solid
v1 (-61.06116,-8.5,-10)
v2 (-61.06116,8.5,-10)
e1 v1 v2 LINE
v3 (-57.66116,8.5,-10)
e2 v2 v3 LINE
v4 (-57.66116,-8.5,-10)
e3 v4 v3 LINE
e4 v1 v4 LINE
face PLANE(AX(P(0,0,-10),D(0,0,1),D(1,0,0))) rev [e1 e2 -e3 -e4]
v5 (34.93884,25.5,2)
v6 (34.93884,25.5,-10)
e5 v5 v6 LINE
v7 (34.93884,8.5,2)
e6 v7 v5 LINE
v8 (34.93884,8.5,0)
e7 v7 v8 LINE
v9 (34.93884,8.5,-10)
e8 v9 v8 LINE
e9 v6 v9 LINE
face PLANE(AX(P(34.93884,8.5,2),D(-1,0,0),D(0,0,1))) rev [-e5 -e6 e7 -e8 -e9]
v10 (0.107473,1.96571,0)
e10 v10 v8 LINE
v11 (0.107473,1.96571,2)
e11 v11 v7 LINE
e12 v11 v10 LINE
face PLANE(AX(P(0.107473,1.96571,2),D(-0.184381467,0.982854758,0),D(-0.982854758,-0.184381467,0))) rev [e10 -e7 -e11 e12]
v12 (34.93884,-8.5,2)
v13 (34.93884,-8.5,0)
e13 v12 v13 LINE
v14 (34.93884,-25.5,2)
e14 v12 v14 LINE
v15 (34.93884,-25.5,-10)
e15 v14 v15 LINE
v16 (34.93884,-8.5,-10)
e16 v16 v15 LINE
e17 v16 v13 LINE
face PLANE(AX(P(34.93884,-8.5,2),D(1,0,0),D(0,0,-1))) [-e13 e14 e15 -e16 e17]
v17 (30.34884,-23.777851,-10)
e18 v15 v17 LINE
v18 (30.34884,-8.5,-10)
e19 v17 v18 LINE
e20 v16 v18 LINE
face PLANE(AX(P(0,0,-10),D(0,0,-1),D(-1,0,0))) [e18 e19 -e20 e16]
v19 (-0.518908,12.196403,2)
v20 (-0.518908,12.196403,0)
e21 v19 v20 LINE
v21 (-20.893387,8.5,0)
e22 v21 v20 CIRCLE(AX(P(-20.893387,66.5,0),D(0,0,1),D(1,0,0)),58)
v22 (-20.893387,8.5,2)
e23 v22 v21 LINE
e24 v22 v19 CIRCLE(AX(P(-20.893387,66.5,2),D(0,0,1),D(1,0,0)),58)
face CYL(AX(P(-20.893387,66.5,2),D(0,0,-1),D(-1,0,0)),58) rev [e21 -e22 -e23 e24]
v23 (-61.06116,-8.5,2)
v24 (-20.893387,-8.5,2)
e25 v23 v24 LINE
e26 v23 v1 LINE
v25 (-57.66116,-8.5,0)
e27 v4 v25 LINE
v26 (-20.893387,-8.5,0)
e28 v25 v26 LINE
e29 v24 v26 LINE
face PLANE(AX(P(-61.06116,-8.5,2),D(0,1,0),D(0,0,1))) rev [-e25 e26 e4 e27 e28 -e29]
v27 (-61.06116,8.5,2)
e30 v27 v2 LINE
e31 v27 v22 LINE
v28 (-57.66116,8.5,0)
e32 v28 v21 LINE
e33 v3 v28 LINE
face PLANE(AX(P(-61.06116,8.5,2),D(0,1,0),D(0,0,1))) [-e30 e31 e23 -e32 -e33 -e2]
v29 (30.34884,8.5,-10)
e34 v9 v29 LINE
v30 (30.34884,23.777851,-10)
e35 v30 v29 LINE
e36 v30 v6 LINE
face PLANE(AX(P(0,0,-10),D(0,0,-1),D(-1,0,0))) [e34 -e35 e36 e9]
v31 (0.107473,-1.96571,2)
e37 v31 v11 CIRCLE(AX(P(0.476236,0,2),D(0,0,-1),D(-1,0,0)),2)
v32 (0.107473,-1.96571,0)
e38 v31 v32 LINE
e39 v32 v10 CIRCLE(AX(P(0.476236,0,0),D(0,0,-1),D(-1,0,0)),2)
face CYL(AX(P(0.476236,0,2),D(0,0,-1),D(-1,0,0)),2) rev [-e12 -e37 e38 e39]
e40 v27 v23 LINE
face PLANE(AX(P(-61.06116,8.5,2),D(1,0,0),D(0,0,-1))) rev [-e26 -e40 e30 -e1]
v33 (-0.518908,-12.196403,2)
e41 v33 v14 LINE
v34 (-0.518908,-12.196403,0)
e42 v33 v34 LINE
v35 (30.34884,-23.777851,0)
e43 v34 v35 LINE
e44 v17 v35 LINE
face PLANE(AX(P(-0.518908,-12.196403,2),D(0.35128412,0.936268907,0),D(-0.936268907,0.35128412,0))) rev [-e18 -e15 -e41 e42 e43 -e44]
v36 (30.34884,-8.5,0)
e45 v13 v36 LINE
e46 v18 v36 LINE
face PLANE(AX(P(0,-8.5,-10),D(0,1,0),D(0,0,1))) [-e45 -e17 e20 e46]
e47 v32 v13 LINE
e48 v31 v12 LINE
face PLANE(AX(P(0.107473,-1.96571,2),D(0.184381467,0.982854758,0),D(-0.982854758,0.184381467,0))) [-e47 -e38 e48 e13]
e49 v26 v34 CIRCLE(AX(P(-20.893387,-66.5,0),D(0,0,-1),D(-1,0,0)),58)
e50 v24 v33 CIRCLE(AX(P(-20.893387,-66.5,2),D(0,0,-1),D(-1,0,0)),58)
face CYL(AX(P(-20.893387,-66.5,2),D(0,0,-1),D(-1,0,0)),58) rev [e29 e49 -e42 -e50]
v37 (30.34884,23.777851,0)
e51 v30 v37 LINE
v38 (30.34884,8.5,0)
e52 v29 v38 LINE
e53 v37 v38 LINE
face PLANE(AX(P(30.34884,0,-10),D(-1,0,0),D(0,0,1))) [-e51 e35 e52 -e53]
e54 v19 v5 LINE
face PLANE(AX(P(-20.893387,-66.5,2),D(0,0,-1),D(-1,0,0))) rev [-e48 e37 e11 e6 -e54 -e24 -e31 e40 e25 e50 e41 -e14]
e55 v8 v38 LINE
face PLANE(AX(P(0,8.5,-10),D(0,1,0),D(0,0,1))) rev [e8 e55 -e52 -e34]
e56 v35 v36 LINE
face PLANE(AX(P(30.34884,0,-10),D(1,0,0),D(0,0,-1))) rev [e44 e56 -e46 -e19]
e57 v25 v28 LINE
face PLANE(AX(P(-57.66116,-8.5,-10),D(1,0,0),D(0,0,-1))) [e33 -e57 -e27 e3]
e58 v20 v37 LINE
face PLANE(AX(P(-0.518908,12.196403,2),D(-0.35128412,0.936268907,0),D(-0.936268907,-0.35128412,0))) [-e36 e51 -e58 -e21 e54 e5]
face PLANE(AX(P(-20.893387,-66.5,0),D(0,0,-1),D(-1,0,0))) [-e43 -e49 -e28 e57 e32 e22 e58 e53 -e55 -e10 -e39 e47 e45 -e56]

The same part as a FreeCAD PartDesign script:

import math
import FreeCAD as App
import Part
import Sketcher
from FreeCAD import Vector

doc = App.newDocument("Part")
body = doc.addObject("PartDesign::Body", "Body")

# Sketch on XY plane
sketch1 = body.newObject("Sketcher::SketchObject", "Sketch")
sketch1.AttachmentSupport = (doc.getObject("XY_Plane"), [""])
sketch1.MapMode = "FlatFace"
sketch1.addGeometry([
    Part.LineSegment(Vector(34.93884, 25.5, 0), Vector(-0.518908, 12.196403, 0)),  # 0
    Part.ArcOfCircle(Part.Circle(Vector(-20.893387, 66.5, 0), Vector(0, 0, 1), 58), math.radians(-90), math.radians(-69.434122)),  # 1
    Part.LineSegment(Vector(-20.893387, 8.5, 0), Vector(-61.06116, 8.5, 0)),  # 2
    Part.LineSegment(Vector(-61.06116, 8.5, 0), Vector(-61.06116, -8.5, 0)),  # 3
    Part.LineSegment(Vector(-61.06116, -8.5, 0), Vector(-20.893387, -8.5, 0)),  # 4
    Part.ArcOfCircle(Part.Circle(Vector(-20.893387, -66.5, 0), Vector(0, 0, 1), 58), math.radians(69.434122), math.radians(90)),  # 5
    Part.LineSegment(Vector(-0.518908, -12.196403, 0), Vector(34.93884, -25.5, 0)),  # 6
    Part.LineSegment(Vector(34.93884, -25.5, 0), Vector(34.93884, -8.5, 0)),  # 7
    Part.LineSegment(Vector(34.93884, -8.5, 0), Vector(0.107473, -1.96571, 0)),  # 8
    Part.ArcOfCircle(Part.Circle(Vector(0.476236, 0, 0), Vector(0, 0, 1), 2), math.radians(100.625073), math.radians(259.374927)),  # 9
    Part.LineSegment(Vector(0.107473, 1.96571, 0), Vector(34.93884, 8.5, 0)),  # 10
    Part.LineSegment(Vector(34.93884, 8.5, 0), Vector(34.93884, 25.5, 0)),  # 11
], False)
sketch1.addConstraint([
    Sketcher.Constraint("Tangent", 0, 2, 1, 2),
    Sketcher.Constraint("Tangent", 1, 1, 2, 1),
    Sketcher.Constraint("Coincident", 2, 2, 3, 1),
    Sketcher.Constraint("Coincident", 3, 2, 4, 1),
    Sketcher.Constraint("Tangent", 4, 2, 5, 2),
    Sketcher.Constraint("Tangent", 5, 1, 6, 1),
    Sketcher.Constraint("Coincident", 6, 2, 7, 1),
    Sketcher.Constraint("Coincident", 7, 2, 8, 1),
    Sketcher.Constraint("Tangent", 8, 2, 9, 2),
    Sketcher.Constraint("Tangent", 9, 1, 10, 1),
    Sketcher.Constraint("Coincident", 10, 2, 11, 1),
    Sketcher.Constraint("Coincident", 11, 2, 0, 1),
    Sketcher.Constraint("Horizontal", 2),
    Sketcher.Constraint("Vertical", 3),
    Sketcher.Constraint("Horizontal", 4),
    Sketcher.Constraint("Vertical", 7),
    Sketcher.Constraint("Vertical", 11),
    Sketcher.Constraint("Equal", 1, 5),
    Sketcher.Constraint("Symmetric", 1, 3, 5, 3, -1),
    Sketcher.Constraint("Symmetric", 8, 2, 9, 1, -1),
    Sketcher.Constraint("Symmetric", 6, 2, 11, 2, -1),
    Sketcher.Constraint("Horizontal", 4, 2, 7, 2),
    Sketcher.Constraint("Equal", 3, 7),
    Sketcher.Constraint("Radius", 1, 58.0),
    Sketcher.Constraint("Radius", 9, 2.0),
    Sketcher.Constraint("DistanceY", 3, 2, 3, 1, 17.0),
    Sketcher.Constraint("Distance", 0, 37.871329),
    Sketcher.Constraint("DistanceX", 2, 2, 2, 1, 40.167773),
    Sketcher.Constraint("DistanceX", 0, 2, -1, 1, 0.518908),
    Sketcher.Constraint("DistanceX", 5, 1, 8, 2, 0.626381),
])
pad1 = body.newObject("PartDesign::Pad", "Pad")
pad1.Profile = sketch1
pad1.Length = 2

# Sketch on XY plane
sketch2 = body.newObject("Sketcher::SketchObject", "Sketch001")
sketch2.AttachmentSupport = (doc.getObject("XY_Plane"), [""])
sketch2.MapMode = "FlatFace"
sketch2.addGeometry([
    Part.LineSegment(Vector(34.93884, 25.5, 0), Vector(34.93884, 8.5, 0)),  # 0
    Part.LineSegment(Vector(34.93884, 8.5, 0), Vector(30.34884, 8.5, 0)),  # 1
    Part.LineSegment(Vector(30.34884, 8.5, 0), Vector(30.34884, 23.777851, 0)),  # 2
    Part.LineSegment(Vector(30.34884, 23.777851, 0), Vector(34.93884, 25.5, 0)),  # 3
    Part.LineSegment(Vector(34.93884, -8.5, 0), Vector(34.93884, -25.5, 0)),  # 4
    Part.LineSegment(Vector(34.93884, -25.5, 0), Vector(30.34884, -23.777851, 0)),  # 5
    Part.LineSegment(Vector(30.34884, -23.777851, 0), Vector(30.34884, -8.5, 0)),  # 6
    Part.LineSegment(Vector(30.34884, -8.5, 0), Vector(34.93884, -8.5, 0)),  # 7
    Part.LineSegment(Vector(-57.66116, 8.5, 0), Vector(-57.66116, -8.5, 0)),  # 8
    Part.LineSegment(Vector(-57.66116, -8.5, 0), Vector(-61.06116, -8.5, 0)),  # 9
    Part.LineSegment(Vector(-61.06116, -8.5, 0), Vector(-61.06116, 8.5, 0)),  # 10
    Part.LineSegment(Vector(-61.06116, 8.5, 0), Vector(-57.66116, 8.5, 0)),  # 11
], False)
sketch2.addConstraint([
    Sketcher.Constraint("Coincident", 0, 2, 1, 1),
    Sketcher.Constraint("Coincident", 1, 2, 2, 1),
    Sketcher.Constraint("Coincident", 2, 2, 3, 1),
    Sketcher.Constraint("Coincident", 3, 2, 0, 1),
    Sketcher.Constraint("Coincident", 4, 2, 5, 1),
    Sketcher.Constraint("Coincident", 5, 2, 6, 1),
    Sketcher.Constraint("Coincident", 6, 2, 7, 1),
    Sketcher.Constraint("Coincident", 7, 2, 4, 1),
    Sketcher.Constraint("Coincident", 8, 2, 9, 1),
    Sketcher.Constraint("Coincident", 9, 2, 10, 1),
    Sketcher.Constraint("Coincident", 10, 2, 11, 1),
    Sketcher.Constraint("Coincident", 11, 2, 8, 1),
    Sketcher.Constraint("Vertical", 0),
    Sketcher.Constraint("Horizontal", 1),
    Sketcher.Constraint("Vertical", 2),
    Sketcher.Constraint("Vertical", 4),
    Sketcher.Constraint("Vertical", 6),
    Sketcher.Constraint("Horizontal", 7),
    Sketcher.Constraint("Vertical", 8),
    Sketcher.Constraint("Horizontal", 9),
    Sketcher.Constraint("Vertical", 10),
    Sketcher.Constraint("Horizontal", 11),
    Sketcher.Constraint("Symmetric", 3, 2, 4, 2, -1),
    Sketcher.Constraint("Symmetric", 2, 2, 5, 2, -1),
    Sketcher.Constraint("Horizontal", 7, 2, 8, 2),
    Sketcher.Constraint("Horizontal", 1, 2, 10, 2),
    Sketcher.Constraint("Equal", 0, 4),
    Sketcher.Constraint("Equal", 4, 8),
    Sketcher.Constraint("DistanceY", 0, 2, 0, 1, 17.0),
    Sketcher.Constraint("DistanceX", 9, 2, 9, 1, 3.4),
    Sketcher.Constraint("DistanceX", 9, 2, 7, 2, 96.0),
    Sketcher.Constraint("DistanceX", 1, 2, 1, 1, 4.59),
    Sketcher.Constraint("DistanceY", 2, 1, 2, 2, 15.277851),
    Sketcher.Constraint("DistanceX", -1, 1, 0, 2, 34.93884),
])
pad2 = body.newObject("PartDesign::Pad", "Pad001")
pad2.Profile = sketch2
pad2.Length = 10
pad2.Reversed = True

doc.recompute()
